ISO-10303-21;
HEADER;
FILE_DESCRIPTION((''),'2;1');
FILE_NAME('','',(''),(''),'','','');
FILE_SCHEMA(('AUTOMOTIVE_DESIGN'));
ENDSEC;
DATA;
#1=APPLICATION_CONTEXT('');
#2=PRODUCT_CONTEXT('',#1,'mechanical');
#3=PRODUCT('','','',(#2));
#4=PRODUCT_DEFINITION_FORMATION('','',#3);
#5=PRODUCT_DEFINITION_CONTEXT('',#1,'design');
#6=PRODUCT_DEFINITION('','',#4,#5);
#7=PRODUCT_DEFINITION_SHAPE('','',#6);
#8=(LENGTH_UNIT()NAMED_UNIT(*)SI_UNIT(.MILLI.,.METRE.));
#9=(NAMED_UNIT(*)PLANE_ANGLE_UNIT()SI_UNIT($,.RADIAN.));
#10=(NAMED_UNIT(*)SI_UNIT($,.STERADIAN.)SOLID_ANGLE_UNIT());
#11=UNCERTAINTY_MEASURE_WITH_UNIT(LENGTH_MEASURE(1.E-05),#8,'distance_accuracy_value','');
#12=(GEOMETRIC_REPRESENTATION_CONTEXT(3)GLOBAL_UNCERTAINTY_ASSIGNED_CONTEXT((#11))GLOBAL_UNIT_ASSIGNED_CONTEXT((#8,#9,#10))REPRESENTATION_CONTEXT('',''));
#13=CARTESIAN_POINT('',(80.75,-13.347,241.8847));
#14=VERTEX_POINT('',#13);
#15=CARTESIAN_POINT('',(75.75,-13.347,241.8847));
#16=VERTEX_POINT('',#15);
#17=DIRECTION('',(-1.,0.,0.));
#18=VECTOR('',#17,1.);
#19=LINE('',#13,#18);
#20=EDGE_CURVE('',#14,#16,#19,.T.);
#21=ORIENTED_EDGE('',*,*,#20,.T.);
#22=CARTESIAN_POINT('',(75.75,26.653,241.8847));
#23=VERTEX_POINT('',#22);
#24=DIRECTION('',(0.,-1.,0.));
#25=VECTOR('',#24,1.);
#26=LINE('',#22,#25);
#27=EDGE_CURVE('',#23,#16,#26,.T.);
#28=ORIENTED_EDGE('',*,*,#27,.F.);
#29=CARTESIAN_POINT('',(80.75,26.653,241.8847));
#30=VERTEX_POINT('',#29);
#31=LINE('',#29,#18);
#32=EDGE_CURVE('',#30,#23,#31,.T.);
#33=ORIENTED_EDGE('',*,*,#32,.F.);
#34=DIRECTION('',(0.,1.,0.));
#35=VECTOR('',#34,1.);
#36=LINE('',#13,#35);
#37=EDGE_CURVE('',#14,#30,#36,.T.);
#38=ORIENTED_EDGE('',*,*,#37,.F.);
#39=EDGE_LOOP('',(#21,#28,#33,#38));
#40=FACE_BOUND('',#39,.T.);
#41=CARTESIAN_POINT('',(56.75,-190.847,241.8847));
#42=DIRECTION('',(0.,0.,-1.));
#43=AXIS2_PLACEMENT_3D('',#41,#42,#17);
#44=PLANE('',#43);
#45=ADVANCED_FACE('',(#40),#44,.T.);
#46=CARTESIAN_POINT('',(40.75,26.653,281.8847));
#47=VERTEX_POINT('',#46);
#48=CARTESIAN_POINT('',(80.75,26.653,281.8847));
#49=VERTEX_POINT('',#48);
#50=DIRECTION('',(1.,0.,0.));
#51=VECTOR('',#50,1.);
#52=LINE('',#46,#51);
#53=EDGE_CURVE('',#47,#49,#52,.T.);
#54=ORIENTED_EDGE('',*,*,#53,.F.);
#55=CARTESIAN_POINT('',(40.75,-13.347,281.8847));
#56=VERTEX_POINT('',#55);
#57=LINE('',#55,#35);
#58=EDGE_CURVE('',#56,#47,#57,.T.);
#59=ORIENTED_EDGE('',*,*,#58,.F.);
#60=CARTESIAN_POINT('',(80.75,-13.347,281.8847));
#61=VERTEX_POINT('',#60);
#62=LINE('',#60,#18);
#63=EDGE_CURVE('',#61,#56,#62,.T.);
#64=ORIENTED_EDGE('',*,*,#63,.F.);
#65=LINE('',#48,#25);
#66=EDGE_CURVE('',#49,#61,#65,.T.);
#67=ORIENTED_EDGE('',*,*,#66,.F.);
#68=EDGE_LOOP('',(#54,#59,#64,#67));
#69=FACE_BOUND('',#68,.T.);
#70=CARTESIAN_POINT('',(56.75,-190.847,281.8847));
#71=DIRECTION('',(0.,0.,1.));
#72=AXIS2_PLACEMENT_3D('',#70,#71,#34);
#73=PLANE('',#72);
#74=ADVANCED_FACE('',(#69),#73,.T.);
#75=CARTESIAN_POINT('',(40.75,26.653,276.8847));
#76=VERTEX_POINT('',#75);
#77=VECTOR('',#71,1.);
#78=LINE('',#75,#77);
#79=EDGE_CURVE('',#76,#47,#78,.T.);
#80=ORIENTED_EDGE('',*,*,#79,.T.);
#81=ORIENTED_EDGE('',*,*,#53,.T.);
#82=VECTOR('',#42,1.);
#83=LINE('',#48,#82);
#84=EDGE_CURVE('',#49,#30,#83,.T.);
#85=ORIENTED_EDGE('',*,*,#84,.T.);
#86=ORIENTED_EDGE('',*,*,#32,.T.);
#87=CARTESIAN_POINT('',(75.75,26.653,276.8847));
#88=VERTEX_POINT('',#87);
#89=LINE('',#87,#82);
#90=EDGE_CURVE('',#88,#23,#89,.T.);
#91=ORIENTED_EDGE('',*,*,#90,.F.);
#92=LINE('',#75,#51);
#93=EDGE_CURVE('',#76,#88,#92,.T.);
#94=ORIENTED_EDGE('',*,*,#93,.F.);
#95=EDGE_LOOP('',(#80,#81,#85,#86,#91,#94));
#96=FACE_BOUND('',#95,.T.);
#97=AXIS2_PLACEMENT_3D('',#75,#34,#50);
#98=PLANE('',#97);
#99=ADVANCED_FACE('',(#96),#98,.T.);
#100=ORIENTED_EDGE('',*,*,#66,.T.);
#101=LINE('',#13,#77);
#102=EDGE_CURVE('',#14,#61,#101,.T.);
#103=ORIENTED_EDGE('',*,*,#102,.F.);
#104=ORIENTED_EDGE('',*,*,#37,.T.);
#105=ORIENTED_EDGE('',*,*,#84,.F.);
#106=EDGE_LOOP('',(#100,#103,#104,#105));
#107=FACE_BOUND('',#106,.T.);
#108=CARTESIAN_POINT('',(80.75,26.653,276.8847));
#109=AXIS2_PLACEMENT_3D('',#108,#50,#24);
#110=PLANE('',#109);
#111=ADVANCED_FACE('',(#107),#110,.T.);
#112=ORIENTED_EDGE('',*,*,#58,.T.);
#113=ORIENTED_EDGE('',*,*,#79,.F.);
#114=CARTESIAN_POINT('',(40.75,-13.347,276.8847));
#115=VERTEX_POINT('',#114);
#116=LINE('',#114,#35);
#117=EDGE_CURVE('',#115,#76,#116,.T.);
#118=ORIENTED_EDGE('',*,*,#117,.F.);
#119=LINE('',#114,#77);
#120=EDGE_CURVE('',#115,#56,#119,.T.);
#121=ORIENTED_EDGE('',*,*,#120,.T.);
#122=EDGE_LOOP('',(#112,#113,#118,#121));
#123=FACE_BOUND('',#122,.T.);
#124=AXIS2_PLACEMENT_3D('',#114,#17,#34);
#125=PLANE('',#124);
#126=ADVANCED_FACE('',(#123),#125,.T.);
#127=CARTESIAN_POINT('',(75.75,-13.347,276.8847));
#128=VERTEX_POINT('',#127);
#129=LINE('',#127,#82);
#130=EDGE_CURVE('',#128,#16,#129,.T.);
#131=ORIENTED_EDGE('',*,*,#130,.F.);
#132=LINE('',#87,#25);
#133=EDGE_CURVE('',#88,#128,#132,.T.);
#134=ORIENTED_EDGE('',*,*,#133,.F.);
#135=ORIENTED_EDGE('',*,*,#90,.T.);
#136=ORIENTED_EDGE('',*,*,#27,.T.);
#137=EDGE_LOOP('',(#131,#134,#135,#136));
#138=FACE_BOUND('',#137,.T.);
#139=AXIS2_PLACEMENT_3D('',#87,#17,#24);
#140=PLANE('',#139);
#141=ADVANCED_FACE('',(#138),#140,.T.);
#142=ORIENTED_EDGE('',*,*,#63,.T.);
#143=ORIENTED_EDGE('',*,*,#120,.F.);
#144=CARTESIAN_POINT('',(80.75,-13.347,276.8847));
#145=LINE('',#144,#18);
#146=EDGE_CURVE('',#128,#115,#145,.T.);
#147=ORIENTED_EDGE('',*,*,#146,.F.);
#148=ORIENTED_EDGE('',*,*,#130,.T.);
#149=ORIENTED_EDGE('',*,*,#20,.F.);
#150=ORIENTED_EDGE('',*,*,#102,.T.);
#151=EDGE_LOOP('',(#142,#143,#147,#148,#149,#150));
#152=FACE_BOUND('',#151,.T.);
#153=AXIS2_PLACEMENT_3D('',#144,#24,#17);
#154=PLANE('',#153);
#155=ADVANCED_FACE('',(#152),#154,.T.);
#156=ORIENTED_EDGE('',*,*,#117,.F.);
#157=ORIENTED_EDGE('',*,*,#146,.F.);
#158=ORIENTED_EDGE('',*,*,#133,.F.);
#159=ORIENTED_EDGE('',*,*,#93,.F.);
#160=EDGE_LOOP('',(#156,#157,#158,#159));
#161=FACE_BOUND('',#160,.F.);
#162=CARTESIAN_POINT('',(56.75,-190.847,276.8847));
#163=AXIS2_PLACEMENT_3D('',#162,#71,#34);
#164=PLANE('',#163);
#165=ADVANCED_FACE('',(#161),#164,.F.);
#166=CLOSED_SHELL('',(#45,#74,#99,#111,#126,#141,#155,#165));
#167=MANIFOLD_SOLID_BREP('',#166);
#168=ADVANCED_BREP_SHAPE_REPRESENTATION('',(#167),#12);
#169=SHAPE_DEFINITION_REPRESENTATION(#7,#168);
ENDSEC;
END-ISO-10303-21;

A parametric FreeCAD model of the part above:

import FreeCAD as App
import Part
import Sketcher

doc = App.newDocument("Part")
params = doc.addObject("Spreadsheet::Sheet", "Params")
for row, (alias, value) in enumerate([
    ("sketch1_width", "40 mm"),
    ("pad1_length", "5 mm"),
    ("sketch2_width", "5 mm"),
    ("sketch2_height", "40 mm"),
    ("pad2_length", "35 mm"),
], start=1):
    params.set(f"A{row}", alias)
    params.set(f"B{row}", "=" + value)
    params.setAlias(f"B{row}", alias)

body = doc.addObject("PartDesign::Body", "Body")

# Sketch on XY plane
sketch1 = doc.addObject("Sketcher::SketchObject", "Sketch")
body.addObject(sketch1)
sketch1.AttachmentSupport = (doc.XY_Plane, [""])
sketch1.MapMode = "FlatFace"
sketch1.AttachmentOffset = App.Placement(App.Vector(0, 0, 276.8847), App.Rotation())
sketch1.addGeometry([
    Part.LineSegment(App.Vector(41, 27, 0), App.Vector(41, -13, 0)),
    Part.LineSegment(App.Vector(41, -13, 0), App.Vector(81, -13, 0)),
    Part.LineSegment(App.Vector(81, -13, 0), App.Vector(81, 27, 0)),
    Part.LineSegment(App.Vector(81, 27, 0), App.Vector(41, 27, 0)),
], False)
sketch1.addConstraint([
    Sketcher.Constraint("Coincident", 0, 2, 1, 1),
    Sketcher.Constraint("Coincident", 1, 2, 2, 1),
    Sketcher.Constraint("Coincident", 2, 2, 3, 1),
    Sketcher.Constraint("Coincident", 3, 2, 0, 1),
    Sketcher.Constraint("Vertical", 0),
    Sketcher.Constraint("Horizontal", 1),
    Sketcher.Constraint("Vertical", 2),
    Sketcher.Constraint("Horizontal", 3),
    Sketcher.Constraint("Equal", 3, 0),
    Sketcher.Constraint("DistanceX", 1, 1, 1, 2, 40.0),
    Sketcher.Constraint("DistanceX", -1, 1, 0, 2, 40.75),
    Sketcher.Constraint("DistanceY", 0, 2, -1, 1, 13.347),
])
sketch1.setExpression("Constraints[9]", "Params.sketch1_width")
pad1 = doc.addObject("PartDesign::Pad", "Pad")
body.addObject(pad1)
pad1.Profile = sketch1
pad1.setExpression("Length", "Params.pad1_length")

# Sketch on XY plane
sketch2 = doc.addObject("Sketcher::SketchObject", "Sketch001")
body.addObject(sketch2)
sketch2.AttachmentSupport = (doc.XY_Plane, [""])
sketch2.MapMode = "FlatFace"
sketch2.AttachmentOffset = App.Placement(App.Vector(0, 0, 276.8847), App.Rotation())
sketch2.addGeometry([
    Part.LineSegment(App.Vector(81, 27, 0), App.Vector(81, -13, 0)),
    Part.LineSegment(App.Vector(81, -13, 0), App.Vector(76, -13, 0)),
    Part.LineSegment(App.Vector(76, -13, 0), App.Vector(76, 27, 0)),
    Part.LineSegment(App.Vector(76, 27, 0), App.Vector(81, 27, 0)),
], False)
sketch2.addConstraint([
    Sketcher.Constraint("Coincident", 0, 2, 1, 1),
    Sketcher.Constraint("Coincident", 1, 2, 2, 1),
    Sketcher.Constraint("Coincident", 2, 2, 3, 1),
    Sketcher.Constraint("Coincident", 3, 2, 0, 1),
    Sketcher.Constraint("Vertical", 0),
    Sketcher.Constraint("Horizontal", 1),
    Sketcher.Constraint("Vertical", 2),
    Sketcher.Constraint("Horizontal", 3),
    Sketcher.Constraint("DistanceX", 1, 2, 1, 1, 5.0),
    Sketcher.Constraint("DistanceY", 0, 2, 0, 1, 40.0),
    Sketcher.Constraint("DistanceX", -1, 1, 0, 2, 80.75),
    Sketcher.Constraint("DistanceY", 0, 2, -1, 1, 13.347),
])
sketch2.setExpression("Constraints[8]", "Params.sketch2_width")
sketch2.setExpression("Constraints[9]", "Params.sketch2_height")
pad2 = doc.addObject("PartDesign::Pad", "Pad001")
body.addObject(pad2)
pad2.Profile = sketch2
pad2.setExpression("Length", "Params.pad2_length")
pad2.Reversed = True

doc.recompute()
